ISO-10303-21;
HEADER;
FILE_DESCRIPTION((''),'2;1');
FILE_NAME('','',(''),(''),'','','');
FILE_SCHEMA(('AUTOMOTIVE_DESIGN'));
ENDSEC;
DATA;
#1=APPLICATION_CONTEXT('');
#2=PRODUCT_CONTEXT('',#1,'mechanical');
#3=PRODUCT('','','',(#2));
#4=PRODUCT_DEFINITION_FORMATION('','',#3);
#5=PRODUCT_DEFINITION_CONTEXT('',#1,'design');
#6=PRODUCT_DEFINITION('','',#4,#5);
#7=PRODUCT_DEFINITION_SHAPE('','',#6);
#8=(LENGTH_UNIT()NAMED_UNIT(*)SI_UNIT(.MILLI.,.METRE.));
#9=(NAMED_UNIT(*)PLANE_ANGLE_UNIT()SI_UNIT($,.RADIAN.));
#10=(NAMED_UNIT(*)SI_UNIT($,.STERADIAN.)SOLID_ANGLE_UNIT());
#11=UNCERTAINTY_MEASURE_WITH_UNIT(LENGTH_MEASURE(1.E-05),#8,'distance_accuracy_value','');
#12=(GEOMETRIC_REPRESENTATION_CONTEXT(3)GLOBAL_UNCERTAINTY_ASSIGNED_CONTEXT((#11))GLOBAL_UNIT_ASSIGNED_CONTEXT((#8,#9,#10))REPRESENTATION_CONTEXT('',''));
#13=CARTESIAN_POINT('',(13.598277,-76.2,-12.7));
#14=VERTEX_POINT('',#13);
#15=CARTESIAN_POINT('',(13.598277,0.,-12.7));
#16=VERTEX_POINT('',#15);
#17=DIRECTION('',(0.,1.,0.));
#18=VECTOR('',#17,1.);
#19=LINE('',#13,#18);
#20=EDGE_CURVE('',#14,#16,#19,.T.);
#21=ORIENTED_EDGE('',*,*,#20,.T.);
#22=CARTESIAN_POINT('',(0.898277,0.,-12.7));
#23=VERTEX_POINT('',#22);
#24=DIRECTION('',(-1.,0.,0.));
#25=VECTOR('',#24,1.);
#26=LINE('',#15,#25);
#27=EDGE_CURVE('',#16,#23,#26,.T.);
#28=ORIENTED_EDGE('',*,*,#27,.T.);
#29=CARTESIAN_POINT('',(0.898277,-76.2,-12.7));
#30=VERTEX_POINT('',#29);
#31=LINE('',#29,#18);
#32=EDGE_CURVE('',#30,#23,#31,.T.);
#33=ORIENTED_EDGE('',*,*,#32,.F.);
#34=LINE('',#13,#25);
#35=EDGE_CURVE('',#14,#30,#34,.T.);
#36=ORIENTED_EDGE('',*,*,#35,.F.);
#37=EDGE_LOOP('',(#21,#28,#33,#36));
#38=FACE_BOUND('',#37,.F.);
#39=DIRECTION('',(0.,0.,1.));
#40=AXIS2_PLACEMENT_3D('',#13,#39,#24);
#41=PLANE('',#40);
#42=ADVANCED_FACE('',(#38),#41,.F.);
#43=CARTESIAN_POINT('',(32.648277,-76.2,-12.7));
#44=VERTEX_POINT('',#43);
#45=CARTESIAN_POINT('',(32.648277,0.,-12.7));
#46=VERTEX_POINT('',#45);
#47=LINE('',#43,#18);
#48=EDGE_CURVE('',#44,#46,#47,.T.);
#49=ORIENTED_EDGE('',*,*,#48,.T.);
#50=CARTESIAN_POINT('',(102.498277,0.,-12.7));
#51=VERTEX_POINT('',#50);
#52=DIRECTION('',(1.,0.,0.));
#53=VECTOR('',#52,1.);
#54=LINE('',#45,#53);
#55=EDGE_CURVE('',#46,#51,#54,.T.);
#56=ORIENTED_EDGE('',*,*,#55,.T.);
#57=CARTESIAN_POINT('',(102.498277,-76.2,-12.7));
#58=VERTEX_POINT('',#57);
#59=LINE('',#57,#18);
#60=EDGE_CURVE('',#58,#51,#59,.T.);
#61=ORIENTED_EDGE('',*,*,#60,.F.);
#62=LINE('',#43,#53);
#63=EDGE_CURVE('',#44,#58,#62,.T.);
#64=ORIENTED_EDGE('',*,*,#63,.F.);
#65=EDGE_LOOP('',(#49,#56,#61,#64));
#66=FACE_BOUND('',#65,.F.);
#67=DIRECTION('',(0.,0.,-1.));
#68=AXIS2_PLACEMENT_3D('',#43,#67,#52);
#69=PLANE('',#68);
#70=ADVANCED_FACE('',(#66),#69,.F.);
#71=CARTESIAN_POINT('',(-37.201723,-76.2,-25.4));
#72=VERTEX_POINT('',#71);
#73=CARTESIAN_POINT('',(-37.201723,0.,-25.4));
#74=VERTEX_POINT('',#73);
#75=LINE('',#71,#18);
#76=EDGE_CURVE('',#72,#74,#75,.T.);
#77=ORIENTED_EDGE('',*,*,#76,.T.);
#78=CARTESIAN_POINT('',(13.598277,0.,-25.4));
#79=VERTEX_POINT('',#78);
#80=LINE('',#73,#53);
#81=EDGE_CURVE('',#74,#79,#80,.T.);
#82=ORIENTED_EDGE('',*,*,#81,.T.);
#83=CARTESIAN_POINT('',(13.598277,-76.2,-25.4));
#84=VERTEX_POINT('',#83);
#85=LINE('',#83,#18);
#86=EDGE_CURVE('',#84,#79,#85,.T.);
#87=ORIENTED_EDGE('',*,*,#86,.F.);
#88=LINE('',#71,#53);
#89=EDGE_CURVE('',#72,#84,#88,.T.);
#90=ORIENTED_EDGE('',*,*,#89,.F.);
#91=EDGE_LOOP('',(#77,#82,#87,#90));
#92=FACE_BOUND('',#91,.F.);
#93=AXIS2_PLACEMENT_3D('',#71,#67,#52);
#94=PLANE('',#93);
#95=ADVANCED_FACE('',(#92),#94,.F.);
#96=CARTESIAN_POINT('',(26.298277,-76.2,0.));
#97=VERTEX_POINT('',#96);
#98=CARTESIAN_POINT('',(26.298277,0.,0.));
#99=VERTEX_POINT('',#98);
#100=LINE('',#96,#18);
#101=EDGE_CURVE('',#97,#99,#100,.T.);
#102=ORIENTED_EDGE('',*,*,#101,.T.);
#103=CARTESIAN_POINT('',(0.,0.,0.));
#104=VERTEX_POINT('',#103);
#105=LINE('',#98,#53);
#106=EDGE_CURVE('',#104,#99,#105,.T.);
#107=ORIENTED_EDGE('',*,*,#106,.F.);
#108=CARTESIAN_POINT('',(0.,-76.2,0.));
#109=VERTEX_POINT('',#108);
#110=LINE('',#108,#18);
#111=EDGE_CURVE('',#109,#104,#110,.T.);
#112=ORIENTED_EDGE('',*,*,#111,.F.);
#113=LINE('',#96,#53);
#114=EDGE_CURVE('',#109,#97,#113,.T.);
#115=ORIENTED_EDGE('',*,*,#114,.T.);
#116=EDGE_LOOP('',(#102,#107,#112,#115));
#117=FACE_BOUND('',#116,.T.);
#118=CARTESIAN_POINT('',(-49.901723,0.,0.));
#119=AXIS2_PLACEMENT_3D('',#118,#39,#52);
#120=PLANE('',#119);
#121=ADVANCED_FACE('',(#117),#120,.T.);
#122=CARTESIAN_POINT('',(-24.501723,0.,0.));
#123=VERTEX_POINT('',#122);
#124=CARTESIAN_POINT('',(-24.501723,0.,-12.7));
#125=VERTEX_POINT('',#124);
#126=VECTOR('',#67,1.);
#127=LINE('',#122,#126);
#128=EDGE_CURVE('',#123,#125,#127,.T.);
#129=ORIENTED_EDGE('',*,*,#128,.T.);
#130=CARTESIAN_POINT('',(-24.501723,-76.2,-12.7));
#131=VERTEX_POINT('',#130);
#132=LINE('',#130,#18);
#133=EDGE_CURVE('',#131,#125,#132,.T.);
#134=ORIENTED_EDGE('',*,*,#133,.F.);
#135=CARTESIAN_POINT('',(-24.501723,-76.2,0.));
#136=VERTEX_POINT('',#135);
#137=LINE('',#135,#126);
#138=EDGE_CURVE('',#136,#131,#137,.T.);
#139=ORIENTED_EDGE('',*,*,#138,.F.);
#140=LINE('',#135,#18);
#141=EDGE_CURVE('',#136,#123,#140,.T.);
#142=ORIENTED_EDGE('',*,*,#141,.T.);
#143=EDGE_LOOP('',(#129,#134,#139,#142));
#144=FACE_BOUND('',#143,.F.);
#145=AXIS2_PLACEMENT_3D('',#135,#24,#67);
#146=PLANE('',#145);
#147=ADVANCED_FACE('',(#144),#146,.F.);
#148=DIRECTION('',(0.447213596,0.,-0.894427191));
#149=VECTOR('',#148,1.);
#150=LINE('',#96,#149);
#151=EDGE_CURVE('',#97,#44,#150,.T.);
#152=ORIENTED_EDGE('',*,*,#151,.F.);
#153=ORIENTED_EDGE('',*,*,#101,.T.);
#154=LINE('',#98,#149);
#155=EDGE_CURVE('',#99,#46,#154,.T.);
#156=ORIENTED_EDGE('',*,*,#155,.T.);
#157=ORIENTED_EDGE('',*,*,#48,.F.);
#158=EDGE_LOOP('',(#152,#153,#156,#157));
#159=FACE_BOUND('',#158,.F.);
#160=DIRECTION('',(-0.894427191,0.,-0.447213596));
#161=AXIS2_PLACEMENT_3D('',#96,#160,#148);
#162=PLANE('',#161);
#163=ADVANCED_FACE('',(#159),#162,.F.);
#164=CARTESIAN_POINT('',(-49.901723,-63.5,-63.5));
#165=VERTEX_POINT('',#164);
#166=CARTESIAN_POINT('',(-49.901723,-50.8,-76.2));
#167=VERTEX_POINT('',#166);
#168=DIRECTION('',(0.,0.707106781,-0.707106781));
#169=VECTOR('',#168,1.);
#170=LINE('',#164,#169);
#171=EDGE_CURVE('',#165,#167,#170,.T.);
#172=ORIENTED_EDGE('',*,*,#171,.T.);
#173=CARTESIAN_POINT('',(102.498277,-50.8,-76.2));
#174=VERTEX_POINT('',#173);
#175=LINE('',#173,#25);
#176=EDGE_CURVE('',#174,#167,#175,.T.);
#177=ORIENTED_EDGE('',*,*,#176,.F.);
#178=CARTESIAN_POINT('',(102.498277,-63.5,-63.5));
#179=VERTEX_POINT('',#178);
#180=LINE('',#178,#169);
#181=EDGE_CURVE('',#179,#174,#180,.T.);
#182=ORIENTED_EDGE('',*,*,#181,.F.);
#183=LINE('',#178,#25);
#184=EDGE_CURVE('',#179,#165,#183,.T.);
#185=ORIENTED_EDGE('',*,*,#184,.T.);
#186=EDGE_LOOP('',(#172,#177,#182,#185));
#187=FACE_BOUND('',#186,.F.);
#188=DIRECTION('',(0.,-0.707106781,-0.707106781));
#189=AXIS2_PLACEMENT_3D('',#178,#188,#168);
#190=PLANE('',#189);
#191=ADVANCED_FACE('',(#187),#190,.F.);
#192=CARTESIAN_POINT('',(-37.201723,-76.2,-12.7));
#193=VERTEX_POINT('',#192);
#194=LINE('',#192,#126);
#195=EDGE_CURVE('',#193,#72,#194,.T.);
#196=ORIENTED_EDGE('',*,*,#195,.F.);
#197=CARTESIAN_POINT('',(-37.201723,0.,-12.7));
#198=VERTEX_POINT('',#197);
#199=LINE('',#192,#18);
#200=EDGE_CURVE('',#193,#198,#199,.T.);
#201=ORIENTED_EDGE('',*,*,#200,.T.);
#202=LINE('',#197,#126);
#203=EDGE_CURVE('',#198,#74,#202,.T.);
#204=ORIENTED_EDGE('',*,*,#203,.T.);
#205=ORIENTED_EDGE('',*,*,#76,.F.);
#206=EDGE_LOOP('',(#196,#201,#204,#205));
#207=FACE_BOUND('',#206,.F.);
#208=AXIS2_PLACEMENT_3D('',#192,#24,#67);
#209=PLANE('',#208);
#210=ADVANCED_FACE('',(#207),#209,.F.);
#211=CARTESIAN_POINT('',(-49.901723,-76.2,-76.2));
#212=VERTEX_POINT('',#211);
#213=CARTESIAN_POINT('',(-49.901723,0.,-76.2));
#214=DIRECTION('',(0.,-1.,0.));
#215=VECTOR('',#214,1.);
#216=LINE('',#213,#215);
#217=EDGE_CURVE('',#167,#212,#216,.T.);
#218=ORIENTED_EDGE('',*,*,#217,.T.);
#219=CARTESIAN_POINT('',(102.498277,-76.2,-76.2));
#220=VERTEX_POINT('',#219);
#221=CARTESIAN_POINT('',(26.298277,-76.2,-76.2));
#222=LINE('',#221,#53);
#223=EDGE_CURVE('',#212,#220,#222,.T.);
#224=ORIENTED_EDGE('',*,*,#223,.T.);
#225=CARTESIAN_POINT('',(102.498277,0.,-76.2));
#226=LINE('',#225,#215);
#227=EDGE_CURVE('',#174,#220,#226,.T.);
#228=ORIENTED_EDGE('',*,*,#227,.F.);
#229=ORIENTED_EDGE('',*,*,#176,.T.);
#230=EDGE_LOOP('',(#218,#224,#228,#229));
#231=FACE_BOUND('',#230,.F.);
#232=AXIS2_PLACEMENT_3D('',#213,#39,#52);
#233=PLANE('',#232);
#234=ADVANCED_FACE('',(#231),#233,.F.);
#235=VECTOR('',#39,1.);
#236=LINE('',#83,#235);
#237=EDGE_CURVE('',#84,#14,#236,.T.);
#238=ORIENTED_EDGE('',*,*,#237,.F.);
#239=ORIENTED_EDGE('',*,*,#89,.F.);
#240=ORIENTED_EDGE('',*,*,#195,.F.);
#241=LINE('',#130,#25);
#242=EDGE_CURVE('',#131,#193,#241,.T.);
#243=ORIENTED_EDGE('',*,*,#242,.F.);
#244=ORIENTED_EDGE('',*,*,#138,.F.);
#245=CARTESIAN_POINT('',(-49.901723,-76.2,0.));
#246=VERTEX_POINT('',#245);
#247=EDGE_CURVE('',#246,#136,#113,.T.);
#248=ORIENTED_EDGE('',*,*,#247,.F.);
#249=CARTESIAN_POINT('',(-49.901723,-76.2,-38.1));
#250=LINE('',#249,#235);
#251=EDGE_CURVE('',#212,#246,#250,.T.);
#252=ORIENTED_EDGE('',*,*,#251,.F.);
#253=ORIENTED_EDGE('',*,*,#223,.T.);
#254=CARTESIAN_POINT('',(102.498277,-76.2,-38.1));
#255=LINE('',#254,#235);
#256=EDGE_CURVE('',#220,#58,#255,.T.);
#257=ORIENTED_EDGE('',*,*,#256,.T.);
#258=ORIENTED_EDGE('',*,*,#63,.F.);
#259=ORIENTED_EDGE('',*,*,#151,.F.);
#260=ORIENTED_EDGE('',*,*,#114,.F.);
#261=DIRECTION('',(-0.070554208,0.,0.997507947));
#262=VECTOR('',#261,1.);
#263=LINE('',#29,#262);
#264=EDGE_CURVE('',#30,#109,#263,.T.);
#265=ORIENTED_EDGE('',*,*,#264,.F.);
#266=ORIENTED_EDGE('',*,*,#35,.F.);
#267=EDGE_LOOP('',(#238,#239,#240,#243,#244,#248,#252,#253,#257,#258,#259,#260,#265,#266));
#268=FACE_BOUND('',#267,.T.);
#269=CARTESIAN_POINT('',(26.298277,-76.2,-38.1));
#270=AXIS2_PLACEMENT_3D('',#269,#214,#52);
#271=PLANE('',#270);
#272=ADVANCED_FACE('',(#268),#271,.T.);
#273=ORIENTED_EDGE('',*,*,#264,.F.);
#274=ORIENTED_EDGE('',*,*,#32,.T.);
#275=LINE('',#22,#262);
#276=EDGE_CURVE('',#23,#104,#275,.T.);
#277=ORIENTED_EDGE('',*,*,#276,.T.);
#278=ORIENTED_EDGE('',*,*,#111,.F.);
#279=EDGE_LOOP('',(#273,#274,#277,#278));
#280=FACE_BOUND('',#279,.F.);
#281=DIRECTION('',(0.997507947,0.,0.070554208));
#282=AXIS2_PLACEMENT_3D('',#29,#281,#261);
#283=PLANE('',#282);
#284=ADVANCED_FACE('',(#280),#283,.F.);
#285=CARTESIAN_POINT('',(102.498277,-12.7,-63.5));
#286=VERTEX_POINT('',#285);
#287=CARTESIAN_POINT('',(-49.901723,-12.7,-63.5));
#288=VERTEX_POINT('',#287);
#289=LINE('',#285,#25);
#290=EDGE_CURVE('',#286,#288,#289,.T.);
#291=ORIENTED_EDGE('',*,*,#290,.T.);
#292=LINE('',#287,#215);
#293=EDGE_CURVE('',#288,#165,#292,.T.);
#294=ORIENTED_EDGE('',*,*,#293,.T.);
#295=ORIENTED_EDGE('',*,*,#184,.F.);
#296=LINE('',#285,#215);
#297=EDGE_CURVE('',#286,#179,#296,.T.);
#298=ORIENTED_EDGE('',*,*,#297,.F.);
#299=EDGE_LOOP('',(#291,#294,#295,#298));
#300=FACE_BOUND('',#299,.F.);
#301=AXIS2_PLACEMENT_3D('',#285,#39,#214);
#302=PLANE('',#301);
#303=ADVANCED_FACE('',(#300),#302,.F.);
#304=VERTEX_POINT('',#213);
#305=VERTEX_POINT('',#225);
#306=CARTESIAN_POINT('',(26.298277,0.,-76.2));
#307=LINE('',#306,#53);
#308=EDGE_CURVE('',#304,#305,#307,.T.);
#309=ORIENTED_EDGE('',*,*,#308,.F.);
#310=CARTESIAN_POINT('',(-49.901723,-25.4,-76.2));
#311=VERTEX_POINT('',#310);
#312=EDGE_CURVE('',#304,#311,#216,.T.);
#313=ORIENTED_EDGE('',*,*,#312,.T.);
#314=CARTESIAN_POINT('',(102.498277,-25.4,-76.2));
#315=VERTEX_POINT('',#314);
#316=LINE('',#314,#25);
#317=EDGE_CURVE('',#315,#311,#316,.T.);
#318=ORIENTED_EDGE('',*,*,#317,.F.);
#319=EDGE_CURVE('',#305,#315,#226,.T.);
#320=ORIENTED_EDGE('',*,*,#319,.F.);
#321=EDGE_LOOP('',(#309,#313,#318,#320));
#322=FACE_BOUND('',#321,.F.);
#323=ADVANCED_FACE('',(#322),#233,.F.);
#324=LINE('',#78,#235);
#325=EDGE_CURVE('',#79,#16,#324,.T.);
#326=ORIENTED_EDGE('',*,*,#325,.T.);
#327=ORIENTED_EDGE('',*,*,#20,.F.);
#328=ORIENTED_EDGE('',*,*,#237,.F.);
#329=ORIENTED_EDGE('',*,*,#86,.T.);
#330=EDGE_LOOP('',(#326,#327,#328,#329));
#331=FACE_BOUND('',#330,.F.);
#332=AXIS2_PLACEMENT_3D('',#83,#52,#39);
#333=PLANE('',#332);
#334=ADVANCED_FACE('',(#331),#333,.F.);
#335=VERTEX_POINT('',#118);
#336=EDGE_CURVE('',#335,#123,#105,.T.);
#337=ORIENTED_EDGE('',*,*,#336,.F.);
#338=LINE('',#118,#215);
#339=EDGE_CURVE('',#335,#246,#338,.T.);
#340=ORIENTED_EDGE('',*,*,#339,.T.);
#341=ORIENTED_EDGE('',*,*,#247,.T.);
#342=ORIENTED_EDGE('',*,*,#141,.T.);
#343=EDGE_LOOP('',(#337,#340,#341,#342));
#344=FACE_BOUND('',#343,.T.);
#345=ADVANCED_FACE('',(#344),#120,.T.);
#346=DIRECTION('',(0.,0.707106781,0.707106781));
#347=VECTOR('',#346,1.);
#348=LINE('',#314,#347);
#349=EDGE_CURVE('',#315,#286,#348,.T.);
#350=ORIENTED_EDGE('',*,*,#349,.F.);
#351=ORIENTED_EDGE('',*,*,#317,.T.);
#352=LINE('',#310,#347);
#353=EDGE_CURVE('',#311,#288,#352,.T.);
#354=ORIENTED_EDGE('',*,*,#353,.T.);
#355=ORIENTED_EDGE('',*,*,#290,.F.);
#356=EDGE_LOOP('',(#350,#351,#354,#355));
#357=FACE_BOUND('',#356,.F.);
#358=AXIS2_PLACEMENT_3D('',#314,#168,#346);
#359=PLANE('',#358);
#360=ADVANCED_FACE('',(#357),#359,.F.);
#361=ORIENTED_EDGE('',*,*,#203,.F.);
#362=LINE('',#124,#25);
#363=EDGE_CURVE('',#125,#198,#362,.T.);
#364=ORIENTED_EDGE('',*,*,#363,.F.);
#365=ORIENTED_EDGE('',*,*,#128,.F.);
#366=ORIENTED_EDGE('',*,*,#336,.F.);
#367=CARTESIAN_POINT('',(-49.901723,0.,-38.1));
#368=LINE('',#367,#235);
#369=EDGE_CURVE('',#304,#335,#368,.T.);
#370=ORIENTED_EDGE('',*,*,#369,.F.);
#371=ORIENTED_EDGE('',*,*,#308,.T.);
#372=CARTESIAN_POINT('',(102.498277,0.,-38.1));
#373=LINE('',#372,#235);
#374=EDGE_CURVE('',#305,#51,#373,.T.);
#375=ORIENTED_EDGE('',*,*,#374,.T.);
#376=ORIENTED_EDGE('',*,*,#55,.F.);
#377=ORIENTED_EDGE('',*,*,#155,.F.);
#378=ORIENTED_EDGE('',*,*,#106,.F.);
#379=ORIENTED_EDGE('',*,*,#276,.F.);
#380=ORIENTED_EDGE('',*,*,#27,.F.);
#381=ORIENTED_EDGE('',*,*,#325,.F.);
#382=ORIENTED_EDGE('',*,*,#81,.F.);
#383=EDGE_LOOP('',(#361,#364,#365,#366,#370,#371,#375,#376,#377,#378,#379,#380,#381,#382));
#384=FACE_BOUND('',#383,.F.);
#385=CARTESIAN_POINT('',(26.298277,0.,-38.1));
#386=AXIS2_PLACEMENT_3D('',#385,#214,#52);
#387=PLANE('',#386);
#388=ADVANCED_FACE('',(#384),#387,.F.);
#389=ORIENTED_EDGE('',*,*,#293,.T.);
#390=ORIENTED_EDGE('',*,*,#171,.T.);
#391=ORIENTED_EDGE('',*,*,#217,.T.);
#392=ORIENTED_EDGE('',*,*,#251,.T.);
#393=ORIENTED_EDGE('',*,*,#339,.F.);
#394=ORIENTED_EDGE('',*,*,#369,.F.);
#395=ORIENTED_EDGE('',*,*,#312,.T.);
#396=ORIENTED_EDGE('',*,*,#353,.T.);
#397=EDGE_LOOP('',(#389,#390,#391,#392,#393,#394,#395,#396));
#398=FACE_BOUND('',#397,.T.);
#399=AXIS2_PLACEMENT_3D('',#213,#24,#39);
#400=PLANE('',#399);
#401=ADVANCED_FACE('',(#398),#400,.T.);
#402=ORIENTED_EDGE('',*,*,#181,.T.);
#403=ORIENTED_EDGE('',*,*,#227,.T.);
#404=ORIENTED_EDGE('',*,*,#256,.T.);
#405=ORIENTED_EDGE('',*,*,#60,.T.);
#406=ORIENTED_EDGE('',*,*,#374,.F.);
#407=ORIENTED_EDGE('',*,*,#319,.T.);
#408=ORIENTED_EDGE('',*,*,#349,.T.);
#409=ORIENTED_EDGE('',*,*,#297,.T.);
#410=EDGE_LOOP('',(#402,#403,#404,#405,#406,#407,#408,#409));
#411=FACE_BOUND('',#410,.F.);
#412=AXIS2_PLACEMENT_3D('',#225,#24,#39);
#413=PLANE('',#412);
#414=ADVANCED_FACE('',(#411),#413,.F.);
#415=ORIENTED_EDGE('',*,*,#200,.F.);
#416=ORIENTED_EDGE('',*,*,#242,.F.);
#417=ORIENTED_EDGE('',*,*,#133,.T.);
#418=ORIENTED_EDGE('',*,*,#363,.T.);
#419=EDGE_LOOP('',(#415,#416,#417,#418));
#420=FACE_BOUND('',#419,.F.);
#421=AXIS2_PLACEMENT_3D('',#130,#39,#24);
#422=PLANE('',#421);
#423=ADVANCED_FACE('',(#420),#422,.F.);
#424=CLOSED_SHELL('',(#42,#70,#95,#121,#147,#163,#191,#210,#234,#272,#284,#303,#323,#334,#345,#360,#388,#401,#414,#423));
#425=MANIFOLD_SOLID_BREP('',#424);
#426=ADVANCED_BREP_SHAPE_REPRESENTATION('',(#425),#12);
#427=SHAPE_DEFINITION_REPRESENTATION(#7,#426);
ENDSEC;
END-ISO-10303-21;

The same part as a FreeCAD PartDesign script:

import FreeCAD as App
import Part
import Sketcher
Q = App.Units.Quantity


def add_polygon(sketch, points):
    """Adds a closed chain of lines whose ends are joined by coincident constraints."""
    first, n = sketch.GeometryCount, len(points)
    for a, b in zip(points, points[1:] + points[:1]):
        sketch.addGeometry(Part.LineSegment(App.Vector(*a, 0), App.Vector(*b, 0)), False)
    for i in range(n):
        sketch.addConstraint(Sketcher.Constraint("Coincident", first + i, 2, first + (i + 1) % n, 1))

doc = App.newDocument("Part")
body = doc.addObject("PartDesign::Body", "Body")

sketch1 = body.newObject("Sketcher::SketchObject", "Sketch")
sketch1.AttachmentSupport = (doc.getObject("XZ_Plane"), [""])
sketch1.MapMode = "FlatFace"
add_polygon(sketch1, [(-50, 0), (-50, -76), (102, -76), (102, 0)])
sketch1.addConstraint([
    Sketcher.Constraint("Vertical", 0),
    Sketcher.Constraint("Horizontal", 1),
    Sketcher.Constraint("Vertical", 2),
    Sketcher.Constraint("Horizontal", 3),
    Sketcher.Constraint("PointOnObject", 2, 2, -1),
    Sketcher.Constraint("DistanceX", 1, 1, 1, 2, Q("6 in")),
    Sketcher.Constraint("DistanceY", 0, 2, 0, 1, Q("3 in")),
    Sketcher.Constraint("DistanceX", 0, 2, -1, 1, Q("49.901723 mm")),
])
pad1 = body.newObject("PartDesign::Pad", "Pad")
pad1.Profile = sketch1
pad1.Length = Q("3 in")

sketch2 = body.newObject("Sketcher::SketchObject", "Sketch001")
sketch2.AttachmentSupport = (doc.getObject("XZ_Plane"), [""])
sketch2.MapMode = "FlatFace"
sketch2.AttachmentOffset = App.Placement(App.Vector(0, 0, 3 * 25.4), App.Rotation())
add_polygon(sketch2, [(0, 0), (-25, 0), (-25, -13), (-37, -13), (-37, -25), (14, -25), (14, -13), (1, -13)])
add_polygon(sketch2, [(33, -13), (102, -13), (102, 0), (26, 0)])
sketch2.addConstraint([
    Sketcher.Constraint("Horizontal", 0),
    Sketcher.Constraint("Vertical", 1),
    Sketcher.Constraint("Horizontal", 2),
    Sketcher.Constraint("Vertical", 3),
    Sketcher.Constraint("Horizontal", 4),
    Sketcher.Constraint("Vertical", 5),
    Sketcher.Constraint("Horizontal", 6),
    Sketcher.Constraint("Horizontal", 8),
    Sketcher.Constraint("Vertical", 9),
    Sketcher.Constraint("Horizontal", 10),
    Sketcher.Constraint("Coincident", 7, 2, -1, 1),
    Sketcher.Constraint("PointOnObject", 9, 2, -1),
    Sketcher.Constraint("Horizontal", 2, 2, 5, 2),
    Sketcher.Constraint("Horizontal", 6, 2, 8, 2),
    Sketcher.Constraint("Equal", 2, 6),
    Sketcher.Constraint("Equal", 6, 1),
    Sketcher.Constraint("Equal", 1, 3),
    Sketcher.Constraint("DistanceX", 4, 1, 4, 2, Q("2 in")),
    Sketcher.Constraint("DistanceX", 10, 2, 10, 1, Q("3 in")),
    Sketcher.Constraint("DistanceX", 2, 2, 2, 1, Q("0.5 in")),
    Sketcher.Constraint("DistanceX", 6, 2, 8, 2, Q("4 in")),
    Sketcher.Constraint("DistanceX", 8, 1, 8, 2, Q("2.75 in")),
    Sketcher.Constraint("Distance", 7, Q("12.731728 mm")),
])
pocket1 = body.newObject("PartDesign::Pocket", "Pocket")
pocket1.Profile = sketch2
pocket1.Length = Q("3 in")

sketch3 = body.newObject("Sketcher::SketchObject", "Sketch002")
sketch3.AttachmentSupport = (doc.getObject("YZ_Plane"), [""])
sketch3.MapMode = "FlatFace"
sketch3.AttachmentOffset = App.Placement(App.Vector(0, 0, 102.498277), App.Rotation())
add_polygon(sketch3, [(-51, -76), (-25, -76), (-13, -64), (-64, -64)])
sketch3.addConstraint([
    Sketcher.Constraint("Horizontal", 0),
    Sketcher.Constraint("Horizontal", 2),
    Sketcher.Constraint("Perpendicular", 1, 3),
    Sketcher.Constraint("Equal", 1, 3),
    Sketcher.Constraint("DistanceX", 0, 1, 0, 2, Q("1 in")),
    Sketcher.Constraint("DistanceX", 2, 2, 2, 1, Q("2 in")),
    Sketcher.Constraint("DistanceX", 0, 2, -1, 1, Q("1 in")),
    Sketcher.Constraint("DistanceY", 0, 2, -1, 1, Q("3 in")),
])
pocket2 = body.newObject("PartDesign::Pocket", "Pocket001")
pocket2.Profile = sketch3
pocket2.Type = "ThroughAll"

doc.recompute()
